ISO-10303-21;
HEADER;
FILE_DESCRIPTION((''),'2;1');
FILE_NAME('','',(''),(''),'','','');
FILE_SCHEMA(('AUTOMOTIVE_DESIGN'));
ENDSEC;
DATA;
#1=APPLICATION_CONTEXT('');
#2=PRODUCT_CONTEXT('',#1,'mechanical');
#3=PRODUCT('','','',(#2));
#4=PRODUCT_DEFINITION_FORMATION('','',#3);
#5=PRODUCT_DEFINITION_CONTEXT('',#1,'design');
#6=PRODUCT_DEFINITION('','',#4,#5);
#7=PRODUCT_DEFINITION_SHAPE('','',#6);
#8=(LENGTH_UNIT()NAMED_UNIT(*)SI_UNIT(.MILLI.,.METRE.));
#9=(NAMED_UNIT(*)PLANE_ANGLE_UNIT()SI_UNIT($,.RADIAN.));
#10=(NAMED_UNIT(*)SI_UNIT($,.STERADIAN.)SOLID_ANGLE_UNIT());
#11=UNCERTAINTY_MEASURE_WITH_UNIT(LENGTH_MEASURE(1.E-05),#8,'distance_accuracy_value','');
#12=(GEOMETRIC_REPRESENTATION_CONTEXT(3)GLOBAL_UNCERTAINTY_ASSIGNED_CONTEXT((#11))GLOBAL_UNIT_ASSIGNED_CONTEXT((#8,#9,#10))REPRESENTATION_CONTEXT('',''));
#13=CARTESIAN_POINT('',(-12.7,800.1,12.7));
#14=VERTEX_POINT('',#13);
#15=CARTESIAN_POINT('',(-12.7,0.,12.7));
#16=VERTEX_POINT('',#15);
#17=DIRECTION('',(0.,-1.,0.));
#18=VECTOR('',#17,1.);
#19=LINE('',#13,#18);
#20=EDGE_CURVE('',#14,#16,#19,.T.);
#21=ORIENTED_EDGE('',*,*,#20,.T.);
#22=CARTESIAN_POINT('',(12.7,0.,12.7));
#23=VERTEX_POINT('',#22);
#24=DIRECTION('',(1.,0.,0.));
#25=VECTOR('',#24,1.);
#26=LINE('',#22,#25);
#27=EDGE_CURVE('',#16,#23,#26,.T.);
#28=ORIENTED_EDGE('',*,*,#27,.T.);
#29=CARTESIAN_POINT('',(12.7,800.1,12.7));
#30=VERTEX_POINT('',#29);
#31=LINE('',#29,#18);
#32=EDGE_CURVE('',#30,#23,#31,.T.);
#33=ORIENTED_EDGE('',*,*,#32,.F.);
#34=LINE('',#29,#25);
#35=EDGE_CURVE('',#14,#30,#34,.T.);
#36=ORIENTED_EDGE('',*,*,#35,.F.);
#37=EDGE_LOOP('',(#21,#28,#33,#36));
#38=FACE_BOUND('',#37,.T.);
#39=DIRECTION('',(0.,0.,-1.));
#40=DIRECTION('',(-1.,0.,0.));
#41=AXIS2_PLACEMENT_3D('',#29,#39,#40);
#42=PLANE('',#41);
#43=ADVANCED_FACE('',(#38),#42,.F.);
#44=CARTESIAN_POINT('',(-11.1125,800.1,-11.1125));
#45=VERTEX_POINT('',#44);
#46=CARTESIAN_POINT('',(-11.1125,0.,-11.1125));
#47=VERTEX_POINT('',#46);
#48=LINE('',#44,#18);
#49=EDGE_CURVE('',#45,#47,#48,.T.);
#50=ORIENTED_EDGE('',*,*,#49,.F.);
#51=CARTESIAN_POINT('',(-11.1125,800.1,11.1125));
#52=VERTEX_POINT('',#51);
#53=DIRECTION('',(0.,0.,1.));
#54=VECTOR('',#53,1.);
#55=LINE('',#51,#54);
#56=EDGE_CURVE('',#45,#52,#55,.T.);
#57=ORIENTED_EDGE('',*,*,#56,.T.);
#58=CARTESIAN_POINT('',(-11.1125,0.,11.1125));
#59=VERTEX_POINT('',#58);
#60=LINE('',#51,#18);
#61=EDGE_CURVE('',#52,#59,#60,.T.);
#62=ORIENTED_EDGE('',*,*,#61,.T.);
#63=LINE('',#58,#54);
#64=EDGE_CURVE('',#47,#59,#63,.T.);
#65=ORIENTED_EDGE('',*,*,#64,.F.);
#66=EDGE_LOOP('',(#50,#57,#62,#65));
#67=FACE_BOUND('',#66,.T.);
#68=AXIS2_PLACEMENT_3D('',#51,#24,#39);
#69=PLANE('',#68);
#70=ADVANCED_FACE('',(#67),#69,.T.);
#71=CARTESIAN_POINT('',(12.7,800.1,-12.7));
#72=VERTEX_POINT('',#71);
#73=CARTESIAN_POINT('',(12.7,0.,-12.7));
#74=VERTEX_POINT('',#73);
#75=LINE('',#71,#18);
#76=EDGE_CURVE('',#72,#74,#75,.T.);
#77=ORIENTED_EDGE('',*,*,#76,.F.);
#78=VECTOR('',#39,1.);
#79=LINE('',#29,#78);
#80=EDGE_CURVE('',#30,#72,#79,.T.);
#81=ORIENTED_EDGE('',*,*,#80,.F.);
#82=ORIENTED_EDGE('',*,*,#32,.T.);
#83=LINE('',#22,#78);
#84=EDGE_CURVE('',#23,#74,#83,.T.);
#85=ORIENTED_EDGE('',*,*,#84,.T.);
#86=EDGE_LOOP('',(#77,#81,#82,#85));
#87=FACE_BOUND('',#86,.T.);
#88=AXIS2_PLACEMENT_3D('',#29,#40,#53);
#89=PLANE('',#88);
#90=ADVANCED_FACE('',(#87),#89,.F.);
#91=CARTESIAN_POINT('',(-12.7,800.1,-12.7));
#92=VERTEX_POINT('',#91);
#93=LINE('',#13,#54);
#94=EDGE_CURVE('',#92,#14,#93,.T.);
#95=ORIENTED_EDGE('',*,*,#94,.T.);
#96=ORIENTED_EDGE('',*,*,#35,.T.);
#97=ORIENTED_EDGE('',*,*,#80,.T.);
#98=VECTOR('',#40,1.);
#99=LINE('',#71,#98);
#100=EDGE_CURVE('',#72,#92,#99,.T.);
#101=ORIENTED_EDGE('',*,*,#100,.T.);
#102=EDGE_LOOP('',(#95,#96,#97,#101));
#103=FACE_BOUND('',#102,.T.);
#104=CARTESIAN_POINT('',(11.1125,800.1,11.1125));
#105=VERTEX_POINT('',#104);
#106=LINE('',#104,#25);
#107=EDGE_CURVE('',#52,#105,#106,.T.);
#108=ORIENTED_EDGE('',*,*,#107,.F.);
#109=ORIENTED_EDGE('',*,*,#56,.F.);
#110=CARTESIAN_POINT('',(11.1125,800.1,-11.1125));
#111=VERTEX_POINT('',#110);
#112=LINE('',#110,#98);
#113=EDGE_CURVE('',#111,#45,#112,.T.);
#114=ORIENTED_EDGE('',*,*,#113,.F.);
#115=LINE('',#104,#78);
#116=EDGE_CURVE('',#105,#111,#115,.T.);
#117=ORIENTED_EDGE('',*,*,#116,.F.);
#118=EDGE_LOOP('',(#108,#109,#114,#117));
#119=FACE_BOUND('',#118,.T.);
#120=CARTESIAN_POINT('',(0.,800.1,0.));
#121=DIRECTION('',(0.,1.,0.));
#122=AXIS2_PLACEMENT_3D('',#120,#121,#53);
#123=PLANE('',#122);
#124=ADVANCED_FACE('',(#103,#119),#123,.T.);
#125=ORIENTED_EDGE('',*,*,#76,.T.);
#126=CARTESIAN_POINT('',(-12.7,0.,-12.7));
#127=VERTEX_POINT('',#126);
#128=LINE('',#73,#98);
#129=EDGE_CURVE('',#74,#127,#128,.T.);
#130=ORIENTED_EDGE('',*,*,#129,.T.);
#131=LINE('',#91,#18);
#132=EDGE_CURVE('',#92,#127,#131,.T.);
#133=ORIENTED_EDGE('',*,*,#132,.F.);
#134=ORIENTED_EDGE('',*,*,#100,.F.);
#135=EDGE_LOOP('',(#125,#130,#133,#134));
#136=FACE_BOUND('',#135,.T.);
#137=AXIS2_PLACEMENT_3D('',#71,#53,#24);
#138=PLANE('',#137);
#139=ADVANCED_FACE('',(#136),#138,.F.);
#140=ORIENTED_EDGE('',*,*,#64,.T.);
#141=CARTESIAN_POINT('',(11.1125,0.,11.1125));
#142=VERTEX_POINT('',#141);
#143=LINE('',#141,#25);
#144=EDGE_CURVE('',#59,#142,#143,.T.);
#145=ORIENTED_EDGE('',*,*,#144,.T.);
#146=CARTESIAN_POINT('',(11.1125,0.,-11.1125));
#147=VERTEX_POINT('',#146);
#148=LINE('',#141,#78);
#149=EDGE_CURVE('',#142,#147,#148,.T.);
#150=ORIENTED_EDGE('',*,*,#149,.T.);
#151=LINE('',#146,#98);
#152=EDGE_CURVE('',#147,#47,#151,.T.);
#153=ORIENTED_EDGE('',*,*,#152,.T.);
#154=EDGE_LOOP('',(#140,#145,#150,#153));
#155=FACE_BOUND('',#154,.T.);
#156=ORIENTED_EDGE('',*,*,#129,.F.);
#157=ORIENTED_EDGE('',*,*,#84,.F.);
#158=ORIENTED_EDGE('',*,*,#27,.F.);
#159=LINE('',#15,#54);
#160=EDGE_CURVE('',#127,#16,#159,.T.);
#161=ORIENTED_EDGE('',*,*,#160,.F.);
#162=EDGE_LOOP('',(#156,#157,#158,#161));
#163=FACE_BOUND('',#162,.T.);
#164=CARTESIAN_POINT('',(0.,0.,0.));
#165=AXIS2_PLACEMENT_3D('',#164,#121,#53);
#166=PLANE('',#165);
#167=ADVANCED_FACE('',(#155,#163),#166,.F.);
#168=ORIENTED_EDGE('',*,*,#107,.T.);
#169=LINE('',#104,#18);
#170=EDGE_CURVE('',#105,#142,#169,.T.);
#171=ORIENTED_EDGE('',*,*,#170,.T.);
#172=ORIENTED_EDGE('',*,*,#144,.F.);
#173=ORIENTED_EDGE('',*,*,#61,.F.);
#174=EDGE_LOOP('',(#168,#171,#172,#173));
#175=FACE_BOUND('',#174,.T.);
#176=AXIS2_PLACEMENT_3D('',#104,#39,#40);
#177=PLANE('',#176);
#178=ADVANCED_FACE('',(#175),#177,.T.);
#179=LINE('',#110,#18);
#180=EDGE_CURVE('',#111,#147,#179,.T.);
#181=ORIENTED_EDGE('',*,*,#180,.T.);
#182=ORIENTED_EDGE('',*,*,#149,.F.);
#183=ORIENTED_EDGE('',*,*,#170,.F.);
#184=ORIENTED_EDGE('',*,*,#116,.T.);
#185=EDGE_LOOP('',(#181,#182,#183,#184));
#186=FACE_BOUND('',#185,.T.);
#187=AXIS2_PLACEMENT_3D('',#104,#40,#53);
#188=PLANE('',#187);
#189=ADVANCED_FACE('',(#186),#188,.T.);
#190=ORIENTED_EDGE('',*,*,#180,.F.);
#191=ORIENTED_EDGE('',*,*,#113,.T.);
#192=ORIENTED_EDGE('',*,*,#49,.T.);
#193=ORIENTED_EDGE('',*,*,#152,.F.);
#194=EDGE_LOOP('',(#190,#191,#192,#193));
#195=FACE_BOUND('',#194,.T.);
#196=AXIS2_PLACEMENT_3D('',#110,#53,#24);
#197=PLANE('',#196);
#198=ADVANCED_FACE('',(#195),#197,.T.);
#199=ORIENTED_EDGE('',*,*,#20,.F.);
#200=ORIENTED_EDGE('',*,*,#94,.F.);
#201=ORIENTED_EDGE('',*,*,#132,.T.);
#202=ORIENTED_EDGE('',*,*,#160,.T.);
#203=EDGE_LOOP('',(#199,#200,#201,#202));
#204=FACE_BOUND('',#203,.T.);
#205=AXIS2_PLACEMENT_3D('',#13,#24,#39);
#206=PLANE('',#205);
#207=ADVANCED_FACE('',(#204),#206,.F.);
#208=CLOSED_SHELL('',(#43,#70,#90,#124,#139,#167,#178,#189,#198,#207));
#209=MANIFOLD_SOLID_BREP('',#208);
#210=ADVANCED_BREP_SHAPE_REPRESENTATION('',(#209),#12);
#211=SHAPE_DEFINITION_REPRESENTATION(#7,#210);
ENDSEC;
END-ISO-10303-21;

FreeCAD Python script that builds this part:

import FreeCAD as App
import Part
import Sketcher
from FreeCAD import Vector
Q = App.Units.Quantity

doc = App.newDocument("Part")
body = doc.addObject("PartDesign::Body", "Body")

# Sketch on XZ plane
sketch1 = body.newObject("Sketcher::SketchObject", "Sketch")
sketch1.AttachmentSupport = (doc.getObject("XZ_Plane"), [""])
sketch1.MapMode = "FlatFace"
sketch1.addGeometry([
    Part.LineSegment(Vector(-13, -13, 0), Vector(-13, 13, 0)),  # 0
    Part.LineSegment(Vector(-13, 13, 0), Vector(13, 13, 0)),  # 1
    Part.LineSegment(Vector(13, 13, 0), Vector(13, -13, 0)),  # 2
    Part.LineSegment(Vector(13, -13, 0), Vector(-13, -13, 0)),  # 3
    Part.LineSegment(Vector(11, 11, 0), Vector(-11, 11, 0)),  # 4
    Part.LineSegment(Vector(-11, 11, 0), Vector(-11, -11, 0)),  # 5
    Part.LineSegment(Vector(-11, -11, 0), Vector(11, -11, 0)),  # 6
    Part.LineSegment(Vector(11, -11, 0), Vector(11, 11, 0)),  # 7
], False)
sketch1.addConstraint([
    Sketcher.Constraint("Coincident", 0, 2, 1, 1),
    Sketcher.Constraint("Coincident", 1, 2, 2, 1),
    Sketcher.Constraint("Coincident", 2, 2, 3, 1),
    Sketcher.Constraint("Coincident", 3, 2, 0, 1),
    Sketcher.Constraint("Coincident", 4, 2, 5, 1),
    Sketcher.Constraint("Coincident", 5, 2, 6, 1),
    Sketcher.Constraint("Coincident", 6, 2, 7, 1),
    Sketcher.Constraint("Coincident", 7, 2, 4, 1),
    Sketcher.Constraint("Vertical", 0),
    Sketcher.Constraint("Horizontal", 1),
    Sketcher.Constraint("Vertical", 2),
    Sketcher.Constraint("Horizontal", 3),
    Sketcher.Constraint("Horizontal", 4),
    Sketcher.Constraint("Vertical", 5),
    Sketcher.Constraint("Horizontal", 6),
    Sketcher.Constraint("Vertical", 7),
    Sketcher.Constraint("Symmetric", 0, 2, 2, 2, -1, 1),
    Sketcher.Constraint("Symmetric", 4, 2, 6, 2, -1, 1),
    Sketcher.Constraint("Equal", 3, 0),
    Sketcher.Constraint("Equal", 6, 5),
    Sketcher.Constraint("DistanceX", 1, 1, 1, 2, Q("1 in")),
    Sketcher.Constraint("DistanceX", 4, 2, 4, 1, Q("0.875 in")),
])
pad1 = body.newObject("PartDesign::Pad", "Pad")
pad1.Profile = sketch1
pad1.Length = Q("31.5 in")
pad1.Reversed = True

doc.recompute()
